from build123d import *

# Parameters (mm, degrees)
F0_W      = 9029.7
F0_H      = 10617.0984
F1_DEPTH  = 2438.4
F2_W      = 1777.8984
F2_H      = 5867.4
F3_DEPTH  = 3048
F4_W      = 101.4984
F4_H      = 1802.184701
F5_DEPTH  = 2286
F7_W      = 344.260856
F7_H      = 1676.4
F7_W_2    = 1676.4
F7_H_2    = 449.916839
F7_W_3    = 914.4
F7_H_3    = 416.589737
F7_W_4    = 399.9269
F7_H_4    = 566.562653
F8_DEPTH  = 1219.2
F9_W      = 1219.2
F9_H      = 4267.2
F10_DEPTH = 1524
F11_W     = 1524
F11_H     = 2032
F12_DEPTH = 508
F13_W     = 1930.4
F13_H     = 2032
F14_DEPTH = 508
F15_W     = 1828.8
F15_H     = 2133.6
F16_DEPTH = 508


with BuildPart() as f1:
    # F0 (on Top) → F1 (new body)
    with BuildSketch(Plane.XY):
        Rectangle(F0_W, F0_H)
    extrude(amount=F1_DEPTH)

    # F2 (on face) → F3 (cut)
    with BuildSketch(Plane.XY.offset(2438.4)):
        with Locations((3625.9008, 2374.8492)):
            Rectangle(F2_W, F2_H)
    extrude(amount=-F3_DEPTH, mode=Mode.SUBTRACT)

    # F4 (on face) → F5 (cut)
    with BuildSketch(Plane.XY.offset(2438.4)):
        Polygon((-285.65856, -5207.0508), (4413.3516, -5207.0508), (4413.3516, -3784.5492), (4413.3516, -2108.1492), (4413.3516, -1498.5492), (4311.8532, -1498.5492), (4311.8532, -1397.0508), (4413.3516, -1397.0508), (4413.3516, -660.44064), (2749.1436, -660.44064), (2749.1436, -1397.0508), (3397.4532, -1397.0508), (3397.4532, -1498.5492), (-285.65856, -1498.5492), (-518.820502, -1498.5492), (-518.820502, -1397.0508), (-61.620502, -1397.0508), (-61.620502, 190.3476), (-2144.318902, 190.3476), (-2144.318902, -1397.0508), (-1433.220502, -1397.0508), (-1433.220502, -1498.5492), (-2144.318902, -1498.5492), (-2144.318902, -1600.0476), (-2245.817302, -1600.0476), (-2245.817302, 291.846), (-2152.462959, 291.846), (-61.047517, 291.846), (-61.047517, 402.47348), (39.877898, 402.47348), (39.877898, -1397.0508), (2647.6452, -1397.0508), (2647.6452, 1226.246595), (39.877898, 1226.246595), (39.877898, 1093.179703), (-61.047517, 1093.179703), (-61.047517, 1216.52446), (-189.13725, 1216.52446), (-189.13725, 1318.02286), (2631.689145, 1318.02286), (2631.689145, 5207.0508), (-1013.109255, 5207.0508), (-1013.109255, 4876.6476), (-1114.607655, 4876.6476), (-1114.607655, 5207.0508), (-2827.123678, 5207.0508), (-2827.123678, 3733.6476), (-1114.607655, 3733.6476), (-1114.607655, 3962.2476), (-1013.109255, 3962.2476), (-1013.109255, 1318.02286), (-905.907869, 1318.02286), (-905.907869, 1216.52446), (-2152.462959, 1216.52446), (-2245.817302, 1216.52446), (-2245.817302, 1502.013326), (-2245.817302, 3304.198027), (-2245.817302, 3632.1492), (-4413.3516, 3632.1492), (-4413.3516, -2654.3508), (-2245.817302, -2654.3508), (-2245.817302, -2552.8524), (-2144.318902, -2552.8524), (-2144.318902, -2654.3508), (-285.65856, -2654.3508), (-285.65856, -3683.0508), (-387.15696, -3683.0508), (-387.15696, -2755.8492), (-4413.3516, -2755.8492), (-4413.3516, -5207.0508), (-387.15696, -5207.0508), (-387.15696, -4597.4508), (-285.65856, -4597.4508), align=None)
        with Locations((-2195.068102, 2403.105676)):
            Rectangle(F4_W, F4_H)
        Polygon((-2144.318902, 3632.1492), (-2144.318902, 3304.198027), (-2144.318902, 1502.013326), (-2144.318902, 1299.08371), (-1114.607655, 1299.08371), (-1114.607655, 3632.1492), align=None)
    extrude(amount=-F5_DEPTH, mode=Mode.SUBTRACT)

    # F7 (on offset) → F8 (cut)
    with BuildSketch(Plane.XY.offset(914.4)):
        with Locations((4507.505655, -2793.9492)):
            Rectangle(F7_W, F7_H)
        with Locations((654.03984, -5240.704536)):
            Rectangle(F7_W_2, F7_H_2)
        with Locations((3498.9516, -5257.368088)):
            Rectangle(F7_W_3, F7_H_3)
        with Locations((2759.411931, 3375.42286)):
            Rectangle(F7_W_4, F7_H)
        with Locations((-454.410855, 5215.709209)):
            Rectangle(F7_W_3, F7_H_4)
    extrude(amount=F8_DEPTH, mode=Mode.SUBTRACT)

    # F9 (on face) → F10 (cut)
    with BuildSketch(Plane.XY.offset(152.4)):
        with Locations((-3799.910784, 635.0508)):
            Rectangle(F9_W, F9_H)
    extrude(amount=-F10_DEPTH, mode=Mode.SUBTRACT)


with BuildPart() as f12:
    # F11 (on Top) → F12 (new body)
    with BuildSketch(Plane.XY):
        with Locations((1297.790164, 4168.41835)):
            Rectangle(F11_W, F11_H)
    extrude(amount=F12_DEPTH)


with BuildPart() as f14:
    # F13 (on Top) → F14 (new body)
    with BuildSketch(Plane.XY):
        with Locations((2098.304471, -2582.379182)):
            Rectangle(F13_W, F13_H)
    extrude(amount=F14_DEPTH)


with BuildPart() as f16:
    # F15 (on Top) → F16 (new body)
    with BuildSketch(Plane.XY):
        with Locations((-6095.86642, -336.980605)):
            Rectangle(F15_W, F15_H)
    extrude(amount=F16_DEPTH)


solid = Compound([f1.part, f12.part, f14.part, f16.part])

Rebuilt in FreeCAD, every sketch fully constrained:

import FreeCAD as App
import Part
import Sketcher
from FreeCAD import Vector
Q = App.Units.Quantity


def add_polygon(sketch, points):
    """Adds a closed chain of lines whose ends are joined by coincident constraints."""
    first, n = sketch.GeometryCount, len(points)
    for a, b in zip(points, points[1:] + points[:1]):
        sketch.addGeometry(Part.LineSegment(App.Vector(*a, 0), App.Vector(*b, 0)), False)
    for i in range(n):
        sketch.addConstraint(Sketcher.Constraint("Coincident", first + i, 2, first + (i + 1) % n, 1))

doc = App.newDocument("Part")
body = doc.addObject("PartDesign::Body", "Body")

# Sketch on XY plane
sketch1 = body.newObject("Sketcher::SketchObject", "Sketch")
sketch1.AttachmentSupport = (doc.getObject("XY_Plane"), [""])
sketch1.MapMode = "FlatFace"
add_polygon(sketch1, [(-4515, 5309), (-4515, -5309), (4515, -5309), (4515, 5309)])  # lines 0-3
sketch1.addConstraint(Sketcher.Constraint("Vertical", 0))
sketch1.addConstraint(Sketcher.Constraint("Horizontal", 1))
sketch1.addConstraint(Sketcher.Constraint("Vertical", 2))
sketch1.addConstraint(Sketcher.Constraint("Horizontal", 3))
sketch1.addConstraint(Sketcher.Constraint("Symmetric", 0, 2, 2, 2, -1, 1))
sketch1.addConstraint(Sketcher.Constraint("DistanceX", 1, 1, 1, 2, Q("355.5 in")))
sketch1.addConstraint(Sketcher.Constraint("DistanceY", 0, 2, 0, 1, Q("417.996 in")))
pad1 = body.newObject("PartDesign::Pad", "Pad")
pad1.Profile = sketch1
pad1.Length = Q("96 in")

# Sketch on XY plane
sketch2 = body.newObject("Sketcher::SketchObject", "Sketch001")
sketch2.AttachmentSupport = (doc.getObject("XY_Plane"), [""])
sketch2.MapMode = "FlatFace"
sketch2.AttachmentOffset = App.Placement(Vector(0, 0, 96 * 25.4), App.Rotation())
add_polygon(sketch2, [(2737, 5309), (2737, -559), (4515, -559), (4515, 5309)])  # lines 0-3
sketch2.addConstraint(Sketcher.Constraint("Vertical", 0))
sketch2.addConstraint(Sketcher.Constraint("Horizontal", 1))
sketch2.addConstraint(Sketcher.Constraint("Vertical", 2))
sketch2.addConstraint(Sketcher.Constraint("Horizontal", 3))
sketch2.addConstraint(Sketcher.Constraint("DistanceY", 0, 2, 0, 1, Q("231 in")))
sketch2.addConstraint(Sketcher.Constraint("DistanceX", 1, 1, 1, 2, Q("69.996 in")))
sketch2.addConstraint(Sketcher.Constraint("DistanceX", -1, 1, 1, 2, Q("177.75 in")))
sketch2.addConstraint(Sketcher.Constraint("DistanceY", 0, 2, -1, 1, Q("22.002 in")))
pocket1 = body.newObject("PartDesign::Pocket", "Pocket")
pocket1.Profile = sketch2
pocket1.Length = Q("120 in")

# Sketch on XY plane
sketch3 = body.newObject("Sketcher::SketchObject", "Sketch002")
sketch3.AttachmentSupport = (doc.getObject("XY_Plane"), [""])
sketch3.MapMode = "FlatFace"
sketch3.AttachmentOffset = App.Placement(Vector(0, 0, 96 * 25.4), App.Rotation())
add_polygon(sketch3, [(-286, -5207), (4413, -5207), (4413, -1499), (4312, -1499), (4312, -1397), (4413, -1397), (4413, -660), (2749, -660), (2749, -1397), (3397, -1397), (3397, -1499), (-519, -1499), (-519, -1397), (-62, -1397), (-62, 190), (-2144, 190), (-2144, -1397), (-1433, -1397), (-1433, -1499), (-2144, -1499), (-2144, -1600), (-2246, -1600), (-2246, 292), (-61, 292), (-61, 402), (40, 402), (40, -1397), (2648, -1397), (2648, 1226), (40, 1226), (40, 1093), (-61, 1093), (-61, 1217), (-189, 1217), (-189, 1318), (2632, 1318), (2632, 5207), (-1013, 5207), (-1013, 4877), (-1115, 4877), (-1115, 5207), (-2827, 5207), (-2827, 3734), (-1115, 3734), (-1115, 3962), (-1013, 3962), (-1013, 1318), (-906, 1318), (-906, 1217), (-2246, 1217), (-2246, 1502), (-2144, 1502), (-2144, 1299), (-1115, 1299), (-1115, 3632), (-2144, 3632), (-2144, 3304), (-2246, 3304), (-2246, 3632), (-4413, 3632), (-4413, -2654), (-2246, -2654), (-2246, -2553), (-2144, -2553), (-2144, -2654), (-286, -2654), (-286, -3683), (-387, -3683), (-387, -2756), (-4413, -2756), (-4413, -5207), (-387, -5207), (-387, -4597), (-286, -4597)])  # lines 0-73
sketch3.addConstraint(Sketcher.Constraint("Horizontal", 0))
sketch3.addConstraint(Sketcher.Constraint("Vertical", 1))
sketch3.addConstraint(Sketcher.Constraint("Horizontal", 2))
sketch3.addConstraint(Sketcher.Constraint("Vertical", 3))
sketch3.addConstraint(Sketcher.Constraint("Horizontal", 4))
sketch3.addConstraint(Sketcher.Constraint("Vertical", 5))
sketch3.addConstraint(Sketcher.Constraint("Horizontal", 6))
sketch3.addConstraint(Sketcher.Constraint("Vertical", 7))
sketch3.addConstraint(Sketcher.Constraint("Horizontal", 8))
sketch3.addConstraint(Sketcher.Constraint("Vertical", 9))
sketch3.addConstraint(Sketcher.Constraint("Horizontal", 10))
sketch3.addConstraint(Sketcher.Constraint("Vertical", 11))
sketch3.addConstraint(Sketcher.Constraint("Horizontal", 12))
sketch3.addConstraint(Sketcher.Constraint("Vertical", 13))
sketch3.addConstraint(Sketcher.Constraint("Horizontal", 14))
sketch3.addConstraint(Sketcher.Constraint("Vertical", 15))
sketch3.addConstraint(Sketcher.Constraint("Horizontal", 16))
sketch3.addConstraint(Sketcher.Constraint("Vertical", 17))
sketch3.addConstraint(Sketcher.Constraint("Horizontal", 18))
sketch3.addConstraint(Sketcher.Constraint("Vertical", 19))
sketch3.addConstraint(Sketcher.Constraint("Horizontal", 20))
sketch3.addConstraint(Sketcher.Constraint("Vertical", 21))
sketch3.addConstraint(Sketcher.Constraint("Horizontal", 22))
sketch3.addConstraint(Sketcher.Constraint("Vertical", 23))
sketch3.addConstraint(Sketcher.Constraint("Horizontal", 24))
sketch3.addConstraint(Sketcher.Constraint("Vertical", 25))
sketch3.addConstraint(Sketcher.Constraint("Horizontal", 26))
sketch3.addConstraint(Sketcher.Constraint("Vertical", 27))
sketch3.addConstraint(Sketcher.Constraint("Horizontal", 28))
sketch3.addConstraint(Sketcher.Constraint("Vertical", 29))
sketch3.addConstraint(Sketcher.Constraint("Horizontal", 30))
sketch3.addConstraint(Sketcher.Constraint("Vertical", 31))
sketch3.addConstraint(Sketcher.Constraint("Horizontal", 32))
sketch3.addConstraint(Sketcher.Constraint("Vertical", 33))
sketch3.addConstraint(Sketcher.Constraint("Horizontal", 34))
sketch3.addConstraint(Sketcher.Constraint("Vertical", 35))
sketch3.addConstraint(Sketcher.Constraint("Horizontal", 36))
sketch3.addConstraint(Sketcher.Constraint("Vertical", 37))
sketch3.addConstraint(Sketcher.Constraint("Horizontal", 38))
sketch3.addConstraint(Sketcher.Constraint("Vertical", 39))
sketch3.addConstraint(Sketcher.Constraint("Horizontal", 40))
sketch3.addConstraint(Sketcher.Constraint("Vertical", 41))
sketch3.addConstraint(Sketcher.Constraint("Horizontal", 42))
sketch3.addConstraint(Sketcher.Constraint("Vertical", 43))
sketch3.addConstraint(Sketcher.Constraint("Horizontal", 44))
sketch3.addConstraint(Sketcher.Constraint("Vertical", 45))
sketch3.addConstraint(Sketcher.Constraint("Horizontal", 46))
sketch3.addConstraint(Sketcher.Constraint("Vertical", 47))
sketch3.addConstraint(Sketcher.Constraint("Horizontal", 48))
sketch3.addConstraint(Sketcher.Constraint("Vertical", 49))
sketch3.addConstraint(Sketcher.Constraint("Horizontal", 50))
sketch3.addConstraint(Sketcher.Constraint("Vertical", 51))
sketch3.addConstraint(Sketcher.Constraint("Horizontal", 52))
sketch3.addConstraint(Sketcher.Constraint("Vertical", 53))
sketch3.addConstraint(Sketcher.Constraint("Horizontal", 54))
sketch3.addConstraint(Sketcher.Constraint("Vertical", 55))
sketch3.addConstraint(Sketcher.Constraint("Horizontal", 56))
sketch3.addConstraint(Sketcher.Constraint("Vertical", 57))
sketch3.addConstraint(Sketcher.Constraint("Horizontal", 58))
sketch3.addConstraint(Sketcher.Constraint("Vertical", 59))
sketch3.addConstraint(Sketcher.Constraint("Horizontal", 60))
sketch3.addConstraint(Sketcher.Constraint("Vertical", 61))
sketch3.addConstraint(Sketcher.Constraint("Horizontal", 62))
sketch3.addConstraint(Sketcher.Constraint("Vertical", 63))
sketch3.addConstraint(Sketcher.Constraint("Horizontal", 64))
sketch3.addConstraint(Sketcher.Constraint("Vertical", 65))
sketch3.addConstraint(Sketcher.Constraint("Horizontal", 66))
sketch3.addConstraint(Sketcher.Constraint("Vertical", 67))
sketch3.addConstraint(Sketcher.Constraint("Horizontal", 68))
sketch3.addConstraint(Sketcher.Constraint("Vertical", 69))
sketch3.addConstraint(Sketcher.Constraint("Horizontal", 70))
sketch3.addConstraint(Sketcher.Constraint("Vertical", 71))
sketch3.addConstraint(Sketcher.Constraint("Horizontal", 72))
sketch3.addConstraint(Sketcher.Constraint("Vertical", 73))
sketch3.addConstraint(Sketcher.Constraint("Symmetric", 0, 2, 69, 2, -2))
sketch3.addConstraint(Sketcher.Constraint("Horizontal", 4, 2, 7, 2))
sketch3.addConstraint(Sketcher.Constraint("Horizontal", 2, 2, 9, 2))
sketch3.addConstraint(Sketcher.Constraint("Horizontal", 8, 2, 11, 2))
sketch3.addConstraint(Sketcher.Constraint("Horizontal", 12, 2, 15, 2))
sketch3.addConstraint(Sketcher.Constraint("Horizontal", 10, 2, 17, 2))
sketch3.addConstraint(Sketcher.Constraint("Horizontal", 16, 2, 25, 2))
sketch3.addConstraint(Sketcher.Constraint("Horizontal", 36, 2, 39, 2))
sketch3.addConstraint(Sketcher.Constraint("Horizontal", 34, 2, 45, 2))
sketch3.addConstraint(Sketcher.Constraint("Horizontal", 32, 2, 47, 2))
sketch3.addConstraint(Sketcher.Constraint("Horizontal", 54, 2, 57, 2))
sketch3.addConstraint(Sketcher.Constraint("Horizontal", 60, 2, 63, 2))
sketch3.addConstraint(Sketcher.Constraint("Vertical", 1, 2, 4, 2))
sketch3.addConstraint(Sketcher.Constraint("Vertical", 15, 2, 18, 2))
sketch3.addConstraint(Sketcher.Constraint("Vertical", 25, 2, 28, 2))
sketch3.addConstraint(Sketcher.Constraint("Vertical", 23, 2, 30, 2))
sketch3.addConstraint(Sketcher.Constraint("Vertical", 39, 2, 42, 2))
sketch3.addConstraint(Sketcher.Constraint("Vertical", 37, 2, 44, 2))
sketch3.addConstraint(Sketcher.Constraint("Vertical", 21, 2, 48, 2))
sketch3.addConstraint(Sketcher.Constraint("Vertical", 19, 2, 50, 2))
sketch3.addConstraint(Sketcher.Constraint("Vertical", 43, 2, 52, 2))
sketch3.addConstraint(Sketcher.Constraint("Vertical", 51, 2, 54, 2))
sketch3.addConstraint(Sketcher.Constraint("Vertical", 49, 2, 56, 2))
sketch3.addConstraint(Sketcher.Constraint("Vertical", 57, 2, 60, 2))
sketch3.addConstraint(Sketcher.Constraint("Vertical", 55, 2, 62, 2))
sketch3.addConstraint(Sketcher.Constraint("Vertical", 59, 2, 68, 2))
sketch3.addConstraint(Sketcher.Constraint("Vertical", 67, 2, 70, 2))
sketch3.addConstraint(Sketcher.Constraint("Vertical", 65, 2, 72, 2))
sketch3.addConstraint(Sketcher.Constraint("Equal", 4, 20))
sketch3.addConstraint(Sketcher.Constraint("Equal", 20, 38))
sketch3.addConstraint(Sketcher.Constraint("Equal", 62, 66))
sketch3.addConstraint(Sketcher.Constraint("Equal", 72, 3))
sketch3.addConstraint(Sketcher.Constraint("Equal", 17, 19))
sketch3.addConstraint(Sketcher.Constraint("Equal", 19, 33))
sketch3.addConstraint(Sketcher.Constraint("Equal", 47, 61))
sketch3.addConstraint(Sketcher.Constraint("DistanceX", 12, 1, 12, 2, Q("18 in")))
sketch3.addConstraint(Sketcher.Constraint("DistanceY", 43, 1, 43, 2, Q("9 in")))
sketch3.addConstraint(Sketcher.Constraint("DistanceY", 71, 1, 71, 2, Q("24 in")))
sketch3.addConstraint(Sketcher.Constraint("DistanceY", 59, 2, 59, 1, Q("247.5 in")))
sketch3.addConstraint(Sketcher.Constraint("DistanceY", 65, 2, 65, 1, Q("40.5 in")))
sketch3.addConstraint(Sketcher.Constraint("DistanceX", 6, 2, 6, 1, Q("65.52 in")))
sketch3.addConstraint(Sketcher.Constraint("DistanceX", 2, 2, 2, 1, Q("3.996 in")))
sketch3.addConstraint(Sketcher.Constraint("DistanceX", 8, 1, 8, 2, Q("25.524 in")))
sketch3.addConstraint(Sketcher.Constraint("DistanceX", 14, 2, 14, 1, Q("81.996 in")))
sketch3.addConstraint(Sketcher.Constraint("DistanceX", 16, 1, 16, 2, Q("27.996 in")))
sketch3.addConstraint(Sketcher.Constraint("DistanceX", 36, 2, 36, 1, Q("143.496 in")))
sketch3.addConstraint(Sketcher.Constraint("DistanceY", 1, 1, 1, 2, Q("146.004 in")))
sketch3.addConstraint(Sketcher.Constraint("DistanceY", 13, 1, 13, 2, Q("62.496 in")))
sketch3.addConstraint(Sketcher.Constraint("DistanceY", 21, 1, 21, 2, Q("74.484 in")))
sketch3.addConstraint(Sketcher.Constraint("DistanceY", 37, 2, 37, 1, Q("13.008 in")))
sketch3.addConstraint(Sketcher.Constraint("DistanceY", 41, 2, 41, 1, Q("58.008 in")))
sketch3.addConstraint(Sketcher.Constraint("DistanceY", 67, 1, 67, 2, Q("36.504 in")))
sketch3.addConstraint(Sketcher.Constraint("DistanceY", 69, 2, 69, 1, Q("96.504 in")))
sketch3.addConstraint(Sketcher.Constraint("DistanceY", -1, 1, 21, 2, Q("11.49 in")))
sketch3.addConstraint(Sketcher.Constraint("DistanceX", 0, 1, 0, 2, Q("185.0004 in")))
sketch3.addConstraint(Sketcher.Constraint("DistanceX", 68, 2, 68, 1, Q("158.5116 in")))
sketch3.addConstraint(Sketcher.Constraint("DistanceY", 5, 1, 5, 2, Q("29.0004 in")))
sketch3.addConstraint(Sketcher.Constraint("DistanceX", -1, 1, 26, 2, Q("104.238 in")))
sketch3.addConstraint(Sketcher.Constraint("DistanceY", -1, 1, 35, 2, Q("205.002 in")))
sketch3.addConstraint(Sketcher.Constraint("DistanceX", 10, 2, 10, 1, 3916.273702))
sketch3.addConstraint(Sketcher.Constraint("DistanceX", 26, 1, 26, 2, 2607.767302))
sketch3.addConstraint(Sketcher.Constraint("DistanceY", 23, 1, 23, 2, 110.62748))
sketch3.addConstraint(Sketcher.Constraint("DistanceY", 35, 1, 35, 2, 3889.02794))
sketch3.addConstraint(Sketcher.Constraint("DistanceY", 53, 1, 53, 2, 2333.06549))
sketch3.addConstraint(Sketcher.Constraint("DistanceX", 22, 1, 22, 2, 2184.769785))
sketch3.addConstraint(Sketcher.Constraint("DistanceX", 32, 2, 32, 1, 128.089733))
sketch3.addConstraint(Sketcher.Constraint("DistanceX", 34, 1, 34, 2, 2820.826395))
sketch3.addConstraint(Sketcher.Constraint("DistanceX", 40, 2, 40, 1, 1712.516023))
sketch3.addConstraint(Sketcher.Constraint("DistanceX", 46, 1, 46, 2, 107.201386))
sketch3.addConstraint(Sketcher.Constraint("DistanceY", 27, 1, 27, 2, 2623.297395))
sketch3.addConstraint(Sketcher.Constraint("DistanceY", 29, 2, 29, 1, 133.066892))
sketch3.addConstraint(Sketcher.Constraint("DistanceY", 49, 1, 49, 2, 285.488865))
sketch3.addConstraint(Sketcher.Constraint("DistanceY", 55, 2, 55, 1, 327.951173))
pocket2 = body.newObject("PartDesign::Pocket", "Pocket001")
pocket2.Profile = sketch3
pocket2.Length = Q("90 in")

# Sketch on XY plane
sketch4 = body.newObject("Sketcher::SketchObject", "Sketch003")
sketch4.AttachmentSupport = (doc.getObject("XY_Plane"), [""])
sketch4.MapMode = "FlatFace"
sketch4.AttachmentOffset = App.Placement(Vector(0, 0, 36 * 25.4), App.Rotation())
add_polygon(sketch4, [(4335, -1956), (4335, -3632), (4680, -3632), (4680, -1956)])  # lines 0-3
add_polygon(sketch4, [(-184, -5016), (-184, -5466), (1492, -5466), (1492, -5016)])  # lines 4-7
add_polygon(sketch4, [(3042, -5049), (3042, -5466), (3956, -5466), (3956, -5049)])  # lines 8-11
add_polygon(sketch4, [(2559, 4214), (2559, 2537), (2959, 2537), (2959, 4214)])  # lines 12-15
add_polygon(sketch4, [(-912, 5499), (-912, 4932), (3, 4932), (3, 5499)])  # lines 16-19
sketch4.addConstraint(Sketcher.Constraint("Vertical", 0))
sketch4.addConstraint(Sketcher.Constraint("Horizontal", 1))
sketch4.addConstraint(Sketcher.Constraint("Vertical", 2))
sketch4.addConstraint(Sketcher.Constraint("Horizontal", 3))
sketch4.addConstraint(Sketcher.Constraint("Vertical", 4))
sketch4.addConstraint(Sketcher.Constraint("Horizontal", 5))
sketch4.addConstraint(Sketcher.Constraint("Vertical", 6))
sketch4.addConstraint(Sketcher.Constraint("Horizontal", 7))
sketch4.addConstraint(Sketcher.Constraint("Vertical", 8))
sketch4.addConstraint(Sketcher.Constraint("Horizontal", 9))
sketch4.addConstraint(Sketcher.Constraint("Vertical", 10))
sketch4.addConstraint(Sketcher.Constraint("Horizontal", 11))
sketch4.addConstraint(Sketcher.Constraint("Vertical", 12))
sketch4.addConstraint(Sketcher.Constraint("Horizontal", 13))
sketch4.addConstraint(Sketcher.Constraint("Vertical", 14))
sketch4.addConstraint(Sketcher.Constraint("Horizontal", 15))
sketch4.addConstraint(Sketcher.Constraint("Vertical", 16))
sketch4.addConstraint(Sketcher.Constraint("Horizontal", 17))
sketch4.addConstraint(Sketcher.Constraint("Vertical", 18))
sketch4.addConstraint(Sketcher.Constraint("Horizontal", 19))
sketch4.addConstraint(Sketcher.Constraint("Horizontal", 5, 2, 8, 2))
sketch4.addConstraint(Sketcher.Constraint("Equal", 11, 17))
sketch4.addConstraint(Sketcher.Constraint("Equal", 7, 0))
sketch4.addConstraint(Sketcher.Constraint("Equal", 2, 12))
sketch4.addConstraint(Sketcher.Constraint("DistanceX", 5, 1, 5, 2, Q("66 in")))
sketch4.addConstraint(Sketcher.Constraint("DistanceX", 9, 1, 9, 2, Q("36 in")))
sketch4.addConstraint(Sketcher.Constraint("DistanceY", 0, 2, -1, 1, Q("142.998 in")))
sketch4.addConstraint(Sketcher.Constraint("DistanceX", -1, 1, 8, 2, Q("119.754 in")))
sketch4.addConstraint(Sketcher.Constraint("DistanceX", 13, 1, 13, 2, 399.9269))
sketch4.addConstraint(Sketcher.Constraint("DistanceX", 4, 2, -1, 1, Q("7.2504 in")))
sketch4.addConstraint(Sketcher.Constraint("DistanceY", 4, 2, 4, 1, 449.916839))
sketch4.addConstraint(Sketcher.Constraint("DistanceX", 1, 1, 1, 2, 344.260856))
sketch4.addConstraint(Sketcher.Constraint("DistanceY", 8, 2, 8, 1, 416.589737))
sketch4.addConstraint(Sketcher.Constraint("DistanceY", 16, 2, 16, 1, 566.562653))
sketch4.addConstraint(Sketcher.Constraint("DistanceY", 10, 2, -1, 1, 5049.07322))
sketch4.addConstraint(Sketcher.Constraint("DistanceX", -1, 1, 12, 2, 2559.448481))
sketch4.addConstraint(Sketcher.Constraint("DistanceY", -1, 1, 12, 2, 2537.22286))
sketch4.addConstraint(Sketcher.Constraint("DistanceX", -1, 1, 0, 2, 4335.375227))
sketch4.addConstraint(Sketcher.Constraint("DistanceX", 16, 2, -1, 1, 911.610855))
sketch4.addConstraint(Sketcher.Constraint("DistanceY", -1, 1, 16, 2, 4932.427883))
pocket3 = body.newObject("PartDesign::Pocket", "Pocket002")
pocket3.Profile = sketch4
pocket3.Length = Q("48 in")
pocket3.Reversed = True

# Sketch on XY plane
sketch5 = body.newObject("Sketcher::SketchObject", "Sketch004")
sketch5.AttachmentSupport = (doc.getObject("XY_Plane"), [""])
sketch5.MapMode = "FlatFace"
sketch5.AttachmentOffset = App.Placement(Vector(0, 0, 6 * 25.4), App.Rotation())
add_polygon(sketch5, [(-4410, 2769), (-4410, -1499), (-3190, -1499), (-3190, 2769)])  # lines 0-3
sketch5.addConstraint(Sketcher.Constraint("Vertical", 0))
sketch5.addConstraint(Sketcher.Constraint("Horizontal", 1))
sketch5.addConstraint(Sketcher.Constraint("Vertical", 2))
sketch5.addConstraint(Sketcher.Constraint("Horizontal", 3))
sketch5.addConstraint(Sketcher.Constraint("DistanceX", 1, 1, 1, 2, Q("48 in")))
sketch5.addConstraint(Sketcher.Constraint("DistanceY", 0, 2, 0, 1, Q("168 in")))
sketch5.addConstraint(Sketcher.Constraint("DistanceY", 0, 2, -1, 1, Q("58.998 in")))
sketch5.addConstraint(Sketcher.Constraint("DistanceX", 0, 2, -1, 1, 4409.510784))
pocket4 = body.newObject("PartDesign::Pocket", "Pocket003")
pocket4.Profile = sketch5
pocket4.Length = Q("60 in")
body2 = doc.addObject("PartDesign::Body", "Body001")

# Sketch on XY plane
sketch6 = body2.newObject("Sketcher::SketchObject", "Sketch005")
sketch6.AttachmentSupport = (doc.getObject("XY_Plane001"), [""])
sketch6.MapMode = "FlatFace"
add_polygon(sketch6, [(536, 5184), (536, 3152), (2060, 3152), (2060, 5184)])  # lines 0-3
sketch6.addConstraint(Sketcher.Constraint("Vertical", 0))
sketch6.addConstraint(Sketcher.Constraint("Horizontal", 1))
sketch6.addConstraint(Sketcher.Constraint("Vertical", 2))
sketch6.addConstraint(Sketcher.Constraint("Horizontal", 3))
sketch6.addConstraint(Sketcher.Constraint("DistanceX", 1, 1, 1, 2, Q("60 in")))
sketch6.addConstraint(Sketcher.Constraint("DistanceY", 0, 2, 0, 1, Q("80 in")))
sketch6.addConstraint(Sketcher.Constraint("DistanceY", -1, 1, 0, 2, 3152.41835))
sketch6.addConstraint(Sketcher.Constraint("DistanceX", -1, 1, 0, 2, 535.790164))
pad2 = body2.newObject("PartDesign::Pad", "Pad001")
pad2.Profile = sketch6
pad2.Length = Q("20 in")
body3 = doc.addObject("PartDesign::Body", "Body002")

# Sketch on XY plane
sketch7 = body3.newObject("Sketcher::SketchObject", "Sketch006")
sketch7.AttachmentSupport = (doc.getObject("XY_Plane002"), [""])
sketch7.MapMode = "FlatFace"
add_polygon(sketch7, [(1133, -1566), (1133, -3598), (3064, -3598), (3064, -1566)])  # lines 0-3
sketch7.addConstraint(Sketcher.Constraint("Vertical", 0))
sketch7.addConstraint(Sketcher.Constraint("Horizontal", 1))
sketch7.addConstraint(Sketcher.Constraint("Vertical", 2))
sketch7.addConstraint(Sketcher.Constraint("Horizontal", 3))
sketch7.addConstraint(Sketcher.Constraint("DistanceX", 1, 1, 1, 2, Q("76 in")))
sketch7.addConstraint(Sketcher.Constraint("DistanceY", 0, 2, 0, 1, Q("80 in")))
sketch7.addConstraint(Sketcher.Constraint("DistanceX", -1, 1, 0, 2, 1133.104471))
sketch7.addConstraint(Sketcher.Constraint("DistanceY", 2, 2, -1, 1, 1566.379182))
pad3 = body3.newObject("PartDesign::Pad", "Pad002")
pad3.Profile = sketch7
pad3.Length = Q("20 in")
body4 = doc.addObject("PartDesign::Body", "Body003")

# Sketch on XY plane
sketch8 = body4.newObject("Sketcher::SketchObject", "Sketch007")
sketch8.AttachmentSupport = (doc.getObject("XY_Plane003"), [""])
sketch8.MapMode = "FlatFace"
add_polygon(sketch8, [(-7010, 730), (-7010, -1404), (-5181, -1404), (-5181, 730)])  # lines 0-3
sketch8.addConstraint(Sketcher.Constraint("Vertical", 0))
sketch8.addConstraint(Sketcher.Constraint("Horizontal", 1))
sketch8.addConstraint(Sketcher.Constraint("Vertical", 2))
sketch8.addConstraint(Sketcher.Constraint("Horizontal", 3))
sketch8.addConstraint(Sketcher.Constraint("DistanceX", 1, 1, 1, 2, Q("72 in")))
sketch8.addConstraint(Sketcher.Constraint("DistanceY", 0, 2, 0, 1, Q("84 in")))
sketch8.addConstraint(Sketcher.Constraint("DistanceX", 0, 2, -1, 1, 7010.26642))
sketch8.addConstraint(Sketcher.Constraint("DistanceY", 0, 2, -1, 1, 1403.780605))
pad4 = body4.newObject("PartDesign::Pad", "Pad003")
pad4.Profile = sketch8
pad4.Length = Q("20 in")

doc.recompute()
